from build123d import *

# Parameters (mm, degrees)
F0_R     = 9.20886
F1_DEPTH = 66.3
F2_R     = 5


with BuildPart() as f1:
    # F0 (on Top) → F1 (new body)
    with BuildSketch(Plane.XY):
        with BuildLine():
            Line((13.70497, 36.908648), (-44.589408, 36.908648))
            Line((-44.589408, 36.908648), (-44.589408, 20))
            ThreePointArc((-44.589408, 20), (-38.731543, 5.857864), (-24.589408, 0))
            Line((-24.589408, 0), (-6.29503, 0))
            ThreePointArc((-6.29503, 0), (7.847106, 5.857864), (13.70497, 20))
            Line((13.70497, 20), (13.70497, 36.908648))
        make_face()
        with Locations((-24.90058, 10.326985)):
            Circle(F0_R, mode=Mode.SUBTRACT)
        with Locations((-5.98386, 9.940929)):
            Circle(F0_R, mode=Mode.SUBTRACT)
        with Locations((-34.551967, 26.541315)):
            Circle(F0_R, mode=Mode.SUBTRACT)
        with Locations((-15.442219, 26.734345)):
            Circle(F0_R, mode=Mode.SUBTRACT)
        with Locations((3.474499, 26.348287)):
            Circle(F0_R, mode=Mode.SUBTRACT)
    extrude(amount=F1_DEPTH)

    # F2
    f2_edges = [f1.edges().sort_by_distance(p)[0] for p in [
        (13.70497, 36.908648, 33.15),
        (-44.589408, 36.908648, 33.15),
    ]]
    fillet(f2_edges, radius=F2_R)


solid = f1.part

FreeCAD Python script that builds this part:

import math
import FreeCAD as App
import Part
import Sketcher


def edges_at(feature, points):
    """Names of the edges that pass closest to the given points."""
    edges = feature.Shape.Edges
    near = lambda p: min(range(len(edges)), key=lambda i: edges[i].distToShape(Part.Vertex(*p))[0])
    return sorted({f"Edge{near(p) + 1}" for p in points})

doc = App.newDocument("Part")
params = doc.addObject("Spreadsheet::Sheet", "Params")
for row, (alias, value) in enumerate([
    ("sketch1_radius", "20 mm"),
    ("pad1_length", "66.3 mm"),
    ("fillet_radius", "5 mm"),
], start=1):
    params.set(f"A{row}", alias)
    params.set(f"B{row}", "=" + value)
    params.setAlias(f"B{row}", alias)

body = doc.addObject("PartDesign::Body", "Body")

# Sketch on XY plane
sketch1 = body.newObject("Sketcher::SketchObject", "Sketch")
sketch1.AttachmentSupport = (doc.getObject("XY_Plane"), [""])
sketch1.MapMode = "FlatFace"
sketch1.addGeometry([
    Part.LineSegment(App.Vector(14, 37, 0), App.Vector(-45, 37, 0)),  # 0
    Part.LineSegment(App.Vector(-45, 37, 0), App.Vector(-45, 20, 0)),  # 1
    Part.ArcOfCircle(Part.Circle(App.Vector(-25, 20, 0), App.Vector(0, 0, 1), 20), math.radians(-180), math.radians(-90)),  # 2
    Part.LineSegment(App.Vector(-25, 0, 0), App.Vector(-6, 0, 0)),  # 3
    Part.ArcOfCircle(Part.Circle(App.Vector(-6, 20, 0), App.Vector(0, 0, 1), 20), math.radians(-90), math.radians(0)),  # 4
    Part.LineSegment(App.Vector(14, 20, 0), App.Vector(14, 37, 0)),  # 5
    Part.Circle(App.Vector(-25, 10, 0), App.Vector(0, 0, 1), 9),  # 6
    Part.Circle(App.Vector(-6, 10, 0), App.Vector(0, 0, 1), 9),  # 7
    Part.Circle(App.Vector(-35, 27, 0), App.Vector(0, 0, 1), 9),  # 8
    Part.Circle(App.Vector(-15, 27, 0), App.Vector(0, 0, 1), 9),  # 9
    Part.Circle(App.Vector(3, 26, 0), App.Vector(0, 0, 1), 9),  # 10
], False)
sketch1.addConstraint([
    Sketcher.Constraint("Coincident", 0, 2, 1, 1),
    Sketcher.Constraint("Tangent", 1, 2, 2, 1),
    Sketcher.Constraint("Tangent", 2, 2, 3, 1),
    Sketcher.Constraint("Tangent", 3, 2, 4, 1),
    Sketcher.Constraint("Tangent", 4, 2, 5, 1),
    Sketcher.Constraint("Coincident", 5, 2, 0, 1),
    Sketcher.Constraint("Horizontal", 0),
    Sketcher.Constraint("Vertical", 1),
    Sketcher.Constraint("Horizontal", 3),
    Sketcher.Constraint("Vertical", 5),
    Sketcher.Constraint("Equal", 2, 4),
    Sketcher.Constraint("Equal", 6, 7),
    Sketcher.Constraint("Equal", 7, 8),
    Sketcher.Constraint("Equal", 8, 9),
    Sketcher.Constraint("Equal", 9, 10),
    Sketcher.Constraint("PointOnObject", 2, 2, -1),
    Sketcher.Constraint("Radius", 2, 20.0),
    Sketcher.Constraint("Diameter", 6, 18.41772),
    Sketcher.Constraint("DistanceX", -1, 1, 10, 3, 3.474499),
    Sketcher.Constraint("DistanceY", 6, 3, 10, 3, 16.021302),
    Sketcher.Constraint("DistanceX", 0, 2, 0, 1, 58.294378),
    Sketcher.Constraint("DistanceY", 1, 2, 1, 1, 16.908648),
    Sketcher.Constraint("DistanceX", 4, 3, -1, 1, 6.295029),
    Sketcher.Constraint("DistanceX", 6, 3, -1, 1, 24.90058),
    Sketcher.Constraint("DistanceX", 7, 3, -1, 1, 5.98386),
    Sketcher.Constraint("DistanceY", -1, 1, 7, 3, 9.940929),
    Sketcher.Constraint("DistanceX", 9, 3, -1, 1, 15.442219),
    Sketcher.Constraint("DistanceX", 8, 3, 2, 3, 9.962559),
    Sketcher.Constraint("DistanceY", 6, 3, 8, 3, 16.21433),
    Sketcher.Constraint("DistanceY", 6, 3, 9, 3, 16.40736),
    Sketcher.Constraint("DistanceY", 4, 3, 10, 3, 6.348288),
])
sketch1.setExpression("Constraints[16]", "Params.sketch1_radius")
pad1 = body.newObject("PartDesign::Pad", "Pad")
pad1.Profile = sketch1
pad1.setExpression("Length", "Params.pad1_length")
doc.recompute()

fillet = body.newObject("PartDesign::Fillet", "Fillet")
fillet.Base = (pad1, edges_at(pad1, [(13.705, 36.909, 33.15), (-44.589, 36.909, 33.15)]))
fillet.setExpression("Radius", "Params.fillet_radius")

doc.recompute()
